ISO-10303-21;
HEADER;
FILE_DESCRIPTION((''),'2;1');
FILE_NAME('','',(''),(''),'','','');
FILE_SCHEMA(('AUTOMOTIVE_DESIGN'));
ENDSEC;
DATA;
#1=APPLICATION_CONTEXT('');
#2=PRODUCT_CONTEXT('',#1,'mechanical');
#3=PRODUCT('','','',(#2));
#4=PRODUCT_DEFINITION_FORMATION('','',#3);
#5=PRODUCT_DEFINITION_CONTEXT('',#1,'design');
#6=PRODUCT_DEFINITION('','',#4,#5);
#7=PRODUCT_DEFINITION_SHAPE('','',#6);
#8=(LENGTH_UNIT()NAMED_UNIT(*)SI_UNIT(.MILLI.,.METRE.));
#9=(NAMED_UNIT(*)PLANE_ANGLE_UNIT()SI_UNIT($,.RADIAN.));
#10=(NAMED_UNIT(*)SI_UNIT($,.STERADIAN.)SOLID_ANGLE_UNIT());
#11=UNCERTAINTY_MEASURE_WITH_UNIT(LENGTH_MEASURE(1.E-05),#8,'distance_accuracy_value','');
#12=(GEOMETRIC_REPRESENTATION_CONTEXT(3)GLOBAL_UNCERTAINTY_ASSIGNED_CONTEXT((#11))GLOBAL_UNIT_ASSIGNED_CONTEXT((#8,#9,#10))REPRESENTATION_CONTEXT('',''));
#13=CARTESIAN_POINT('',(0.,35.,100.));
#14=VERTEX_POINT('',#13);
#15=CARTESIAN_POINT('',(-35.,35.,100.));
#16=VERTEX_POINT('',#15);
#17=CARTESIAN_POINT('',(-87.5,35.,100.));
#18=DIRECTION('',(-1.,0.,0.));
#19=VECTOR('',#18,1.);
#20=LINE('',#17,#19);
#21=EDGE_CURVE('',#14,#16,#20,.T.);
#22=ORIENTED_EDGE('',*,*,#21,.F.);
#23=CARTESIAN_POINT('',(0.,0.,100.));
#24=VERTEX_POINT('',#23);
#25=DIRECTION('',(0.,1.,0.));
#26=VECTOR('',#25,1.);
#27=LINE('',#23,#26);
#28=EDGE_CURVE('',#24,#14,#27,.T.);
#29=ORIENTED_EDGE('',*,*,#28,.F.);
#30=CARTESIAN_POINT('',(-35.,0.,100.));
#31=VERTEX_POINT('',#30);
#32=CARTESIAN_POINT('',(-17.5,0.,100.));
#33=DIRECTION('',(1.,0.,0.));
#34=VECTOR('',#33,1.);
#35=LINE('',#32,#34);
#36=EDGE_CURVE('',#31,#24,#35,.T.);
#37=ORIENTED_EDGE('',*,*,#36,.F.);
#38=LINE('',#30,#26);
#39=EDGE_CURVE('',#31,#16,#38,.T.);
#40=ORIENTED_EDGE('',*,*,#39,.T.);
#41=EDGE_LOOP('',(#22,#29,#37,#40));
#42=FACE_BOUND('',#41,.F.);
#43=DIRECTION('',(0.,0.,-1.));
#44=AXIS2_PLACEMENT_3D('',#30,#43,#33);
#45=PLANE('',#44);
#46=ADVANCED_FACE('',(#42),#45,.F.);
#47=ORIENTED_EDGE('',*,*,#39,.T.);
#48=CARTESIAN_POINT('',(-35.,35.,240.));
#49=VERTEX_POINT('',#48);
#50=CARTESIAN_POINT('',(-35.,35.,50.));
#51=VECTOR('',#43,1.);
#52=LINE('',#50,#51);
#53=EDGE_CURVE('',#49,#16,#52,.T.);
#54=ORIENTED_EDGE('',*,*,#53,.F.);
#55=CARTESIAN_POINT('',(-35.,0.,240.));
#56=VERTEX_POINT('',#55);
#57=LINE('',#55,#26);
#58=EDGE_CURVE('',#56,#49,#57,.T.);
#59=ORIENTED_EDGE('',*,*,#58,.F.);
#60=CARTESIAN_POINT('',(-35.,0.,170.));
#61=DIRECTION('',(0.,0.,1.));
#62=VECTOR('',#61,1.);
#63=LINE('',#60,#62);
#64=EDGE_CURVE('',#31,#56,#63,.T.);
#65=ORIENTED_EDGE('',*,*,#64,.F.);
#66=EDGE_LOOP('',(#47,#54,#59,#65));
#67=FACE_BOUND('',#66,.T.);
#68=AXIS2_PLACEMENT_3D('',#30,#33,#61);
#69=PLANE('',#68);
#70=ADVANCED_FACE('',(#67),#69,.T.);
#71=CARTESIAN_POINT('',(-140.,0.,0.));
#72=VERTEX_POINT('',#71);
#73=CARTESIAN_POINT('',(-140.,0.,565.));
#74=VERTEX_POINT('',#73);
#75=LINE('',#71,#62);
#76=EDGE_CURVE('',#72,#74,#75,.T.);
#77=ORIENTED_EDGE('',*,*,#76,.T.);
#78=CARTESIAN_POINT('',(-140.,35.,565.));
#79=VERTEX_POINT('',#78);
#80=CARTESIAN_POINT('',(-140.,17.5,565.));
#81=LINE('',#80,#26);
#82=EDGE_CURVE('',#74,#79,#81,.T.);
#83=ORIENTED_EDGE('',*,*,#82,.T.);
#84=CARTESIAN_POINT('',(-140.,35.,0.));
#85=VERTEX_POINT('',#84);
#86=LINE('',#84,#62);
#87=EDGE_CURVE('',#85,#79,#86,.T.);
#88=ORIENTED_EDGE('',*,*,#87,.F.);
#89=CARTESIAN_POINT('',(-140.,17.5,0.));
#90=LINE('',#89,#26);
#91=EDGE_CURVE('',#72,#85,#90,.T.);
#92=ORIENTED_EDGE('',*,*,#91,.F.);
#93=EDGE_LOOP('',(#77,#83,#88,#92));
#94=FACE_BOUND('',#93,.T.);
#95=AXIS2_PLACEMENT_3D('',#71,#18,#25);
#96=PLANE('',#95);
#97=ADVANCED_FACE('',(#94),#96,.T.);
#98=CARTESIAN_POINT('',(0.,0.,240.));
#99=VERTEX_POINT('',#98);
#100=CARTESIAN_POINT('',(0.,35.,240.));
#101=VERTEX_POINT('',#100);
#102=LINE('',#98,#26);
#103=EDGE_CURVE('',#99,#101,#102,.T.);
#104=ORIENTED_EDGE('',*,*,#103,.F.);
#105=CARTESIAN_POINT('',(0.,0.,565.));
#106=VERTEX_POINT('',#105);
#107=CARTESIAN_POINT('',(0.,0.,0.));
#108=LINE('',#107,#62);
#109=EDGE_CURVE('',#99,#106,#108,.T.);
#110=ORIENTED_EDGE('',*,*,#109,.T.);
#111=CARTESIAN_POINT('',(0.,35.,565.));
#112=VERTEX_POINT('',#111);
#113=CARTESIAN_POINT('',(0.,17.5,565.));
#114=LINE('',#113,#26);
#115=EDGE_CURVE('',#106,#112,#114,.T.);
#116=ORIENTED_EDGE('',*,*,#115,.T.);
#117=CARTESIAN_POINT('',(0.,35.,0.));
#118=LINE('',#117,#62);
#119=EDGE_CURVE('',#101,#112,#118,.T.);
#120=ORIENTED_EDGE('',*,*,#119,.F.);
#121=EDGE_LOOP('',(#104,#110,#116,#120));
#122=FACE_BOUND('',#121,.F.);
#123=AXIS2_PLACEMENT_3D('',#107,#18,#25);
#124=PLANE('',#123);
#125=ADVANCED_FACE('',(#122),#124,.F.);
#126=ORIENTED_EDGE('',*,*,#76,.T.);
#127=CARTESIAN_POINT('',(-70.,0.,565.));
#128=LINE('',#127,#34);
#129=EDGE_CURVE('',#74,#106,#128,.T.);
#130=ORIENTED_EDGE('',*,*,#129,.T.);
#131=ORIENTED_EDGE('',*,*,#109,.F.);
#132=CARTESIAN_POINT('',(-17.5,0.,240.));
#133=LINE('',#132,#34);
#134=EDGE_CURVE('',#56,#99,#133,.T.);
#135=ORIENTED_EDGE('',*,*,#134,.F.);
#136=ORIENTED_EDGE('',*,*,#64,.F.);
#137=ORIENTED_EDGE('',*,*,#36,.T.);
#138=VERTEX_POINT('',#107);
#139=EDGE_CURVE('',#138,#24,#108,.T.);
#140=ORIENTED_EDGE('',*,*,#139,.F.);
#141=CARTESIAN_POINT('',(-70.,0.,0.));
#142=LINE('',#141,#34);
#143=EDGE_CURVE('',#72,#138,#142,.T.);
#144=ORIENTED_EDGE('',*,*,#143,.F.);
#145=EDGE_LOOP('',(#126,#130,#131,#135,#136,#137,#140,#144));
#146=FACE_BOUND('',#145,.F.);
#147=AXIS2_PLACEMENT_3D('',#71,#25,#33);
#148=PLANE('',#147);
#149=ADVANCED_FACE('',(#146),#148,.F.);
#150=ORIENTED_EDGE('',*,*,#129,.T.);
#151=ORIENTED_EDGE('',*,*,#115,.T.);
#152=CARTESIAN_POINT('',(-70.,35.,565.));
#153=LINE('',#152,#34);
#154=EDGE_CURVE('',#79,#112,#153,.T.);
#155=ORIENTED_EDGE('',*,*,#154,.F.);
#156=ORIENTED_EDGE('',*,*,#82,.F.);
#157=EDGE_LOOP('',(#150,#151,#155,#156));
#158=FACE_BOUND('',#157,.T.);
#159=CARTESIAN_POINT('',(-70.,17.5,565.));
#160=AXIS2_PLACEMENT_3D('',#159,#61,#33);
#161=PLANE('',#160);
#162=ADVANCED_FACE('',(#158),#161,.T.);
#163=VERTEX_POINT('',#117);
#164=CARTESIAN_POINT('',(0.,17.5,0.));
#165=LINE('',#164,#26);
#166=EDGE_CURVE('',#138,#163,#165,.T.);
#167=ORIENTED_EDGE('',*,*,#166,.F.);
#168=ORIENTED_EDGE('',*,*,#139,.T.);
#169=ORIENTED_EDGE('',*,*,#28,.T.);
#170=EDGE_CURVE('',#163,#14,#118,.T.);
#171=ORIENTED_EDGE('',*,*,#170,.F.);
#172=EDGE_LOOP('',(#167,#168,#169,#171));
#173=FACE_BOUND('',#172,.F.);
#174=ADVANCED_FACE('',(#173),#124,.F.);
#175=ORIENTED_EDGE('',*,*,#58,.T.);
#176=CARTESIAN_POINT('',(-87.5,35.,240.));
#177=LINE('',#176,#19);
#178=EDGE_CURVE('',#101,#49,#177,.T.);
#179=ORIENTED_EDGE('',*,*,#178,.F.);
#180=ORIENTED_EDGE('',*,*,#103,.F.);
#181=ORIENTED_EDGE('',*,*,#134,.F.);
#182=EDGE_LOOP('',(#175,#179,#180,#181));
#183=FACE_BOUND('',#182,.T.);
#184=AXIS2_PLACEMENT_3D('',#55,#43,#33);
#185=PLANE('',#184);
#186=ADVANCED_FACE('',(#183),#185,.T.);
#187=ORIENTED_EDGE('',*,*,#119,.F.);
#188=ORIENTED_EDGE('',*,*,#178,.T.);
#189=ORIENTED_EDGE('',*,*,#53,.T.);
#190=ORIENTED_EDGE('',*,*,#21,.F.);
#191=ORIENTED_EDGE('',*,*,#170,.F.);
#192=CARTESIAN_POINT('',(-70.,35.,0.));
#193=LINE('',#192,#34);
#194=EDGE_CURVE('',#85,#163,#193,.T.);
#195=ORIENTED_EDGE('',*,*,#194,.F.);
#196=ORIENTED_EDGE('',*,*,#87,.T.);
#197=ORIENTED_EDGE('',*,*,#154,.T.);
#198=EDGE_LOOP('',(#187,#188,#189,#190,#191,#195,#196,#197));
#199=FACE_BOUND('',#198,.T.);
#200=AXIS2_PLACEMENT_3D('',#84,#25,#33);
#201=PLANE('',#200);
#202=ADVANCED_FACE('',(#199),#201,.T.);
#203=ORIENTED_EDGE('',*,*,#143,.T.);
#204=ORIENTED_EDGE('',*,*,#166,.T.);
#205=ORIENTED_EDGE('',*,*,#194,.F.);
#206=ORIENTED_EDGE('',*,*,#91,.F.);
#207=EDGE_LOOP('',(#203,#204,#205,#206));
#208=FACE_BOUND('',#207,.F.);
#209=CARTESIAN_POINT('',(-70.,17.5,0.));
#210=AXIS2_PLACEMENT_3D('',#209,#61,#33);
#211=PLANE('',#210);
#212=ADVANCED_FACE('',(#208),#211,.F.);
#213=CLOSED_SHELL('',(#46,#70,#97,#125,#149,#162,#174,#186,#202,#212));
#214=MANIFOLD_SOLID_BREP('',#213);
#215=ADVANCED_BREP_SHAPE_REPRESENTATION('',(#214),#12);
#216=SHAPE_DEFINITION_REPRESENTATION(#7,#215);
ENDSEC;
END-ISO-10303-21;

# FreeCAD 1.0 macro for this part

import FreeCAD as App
import Part
import Sketcher
from FreeCAD import Vector


def add_polygon(sketch, points):
    """Adds a closed chain of lines whose ends are joined by coincident constraints."""
    first, n = sketch.GeometryCount, len(points)
    for a, b in zip(points, points[1:] + points[:1]):
        sketch.addGeometry(Part.LineSegment(App.Vector(*a, 0), App.Vector(*b, 0)), False)
    for i in range(n):
        sketch.addConstraint(Sketcher.Constraint("Coincident", first + i, 2, first + (i + 1) % n, 1))

doc = App.newDocument("Part")
body = doc.addObject("PartDesign::Body", "Body")

# Sketch on XY plane
sketch1 = body.newObject("Sketcher::SketchObject", "Sketch")
sketch1.AttachmentSupport = (doc.getObject("XY_Plane"), [""])
sketch1.MapMode = "FlatFace"
add_polygon(sketch1, [(-140, 35), (-140, 0), (0, 0), (0, 35)])  # lines 0-3
sketch1.addConstraint(Sketcher.Constraint("Vertical", 0))
sketch1.addConstraint(Sketcher.Constraint("Horizontal", 1))
sketch1.addConstraint(Sketcher.Constraint("Vertical", 2))
sketch1.addConstraint(Sketcher.Constraint("Horizontal", 3))
sketch1.addConstraint(Sketcher.Constraint("Coincident", 1, 2, -1, 1))
sketch1.addConstraint(Sketcher.Constraint("DistanceX", 1, 1, 1, 2, 140.0))
sketch1.addConstraint(Sketcher.Constraint("DistanceY", 0, 2, 0, 1, 35.0))
pad1 = body.newObject("PartDesign::Pad", "Pad")
pad1.Profile = sketch1
pad1.Length = 565

# Sketch on XZ plane
sketch2 = body.newObject("Sketcher::SketchObject", "Sketch001")
sketch2.AttachmentSupport = (doc.getObject("XZ_Plane"), [""])
sketch2.MapMode = "FlatFace"
add_polygon(sketch2, [(-35, 240), (-35, 100), (0, 100), (0, 240)])  # lines 0-3
sketch2.addConstraint(Sketcher.Constraint("Vertical", 0))
sketch2.addConstraint(Sketcher.Constraint("Horizontal", 1))
sketch2.addConstraint(Sketcher.Constraint("Vertical", 2))
sketch2.addConstraint(Sketcher.Constraint("Horizontal", 3))
sketch2.addConstraint(Sketcher.Constraint("PointOnObject", 1, 2, -2))
sketch2.addConstraint(Sketcher.Constraint("DistanceX", 1, 1, 1, 2, 35.0))
sketch2.addConstraint(Sketcher.Constraint("DistanceY", 0, 2, 0, 1, 140.0))
sketch2.addConstraint(Sketcher.Constraint("DistanceY", -1, 1, 0, 2, 100.0))
pocket1 = body.newObject("PartDesign::Pocket", "Pocket")
pocket1.Profile = sketch2
pocket1.Type = "ThroughAll"

doc.recompute()
